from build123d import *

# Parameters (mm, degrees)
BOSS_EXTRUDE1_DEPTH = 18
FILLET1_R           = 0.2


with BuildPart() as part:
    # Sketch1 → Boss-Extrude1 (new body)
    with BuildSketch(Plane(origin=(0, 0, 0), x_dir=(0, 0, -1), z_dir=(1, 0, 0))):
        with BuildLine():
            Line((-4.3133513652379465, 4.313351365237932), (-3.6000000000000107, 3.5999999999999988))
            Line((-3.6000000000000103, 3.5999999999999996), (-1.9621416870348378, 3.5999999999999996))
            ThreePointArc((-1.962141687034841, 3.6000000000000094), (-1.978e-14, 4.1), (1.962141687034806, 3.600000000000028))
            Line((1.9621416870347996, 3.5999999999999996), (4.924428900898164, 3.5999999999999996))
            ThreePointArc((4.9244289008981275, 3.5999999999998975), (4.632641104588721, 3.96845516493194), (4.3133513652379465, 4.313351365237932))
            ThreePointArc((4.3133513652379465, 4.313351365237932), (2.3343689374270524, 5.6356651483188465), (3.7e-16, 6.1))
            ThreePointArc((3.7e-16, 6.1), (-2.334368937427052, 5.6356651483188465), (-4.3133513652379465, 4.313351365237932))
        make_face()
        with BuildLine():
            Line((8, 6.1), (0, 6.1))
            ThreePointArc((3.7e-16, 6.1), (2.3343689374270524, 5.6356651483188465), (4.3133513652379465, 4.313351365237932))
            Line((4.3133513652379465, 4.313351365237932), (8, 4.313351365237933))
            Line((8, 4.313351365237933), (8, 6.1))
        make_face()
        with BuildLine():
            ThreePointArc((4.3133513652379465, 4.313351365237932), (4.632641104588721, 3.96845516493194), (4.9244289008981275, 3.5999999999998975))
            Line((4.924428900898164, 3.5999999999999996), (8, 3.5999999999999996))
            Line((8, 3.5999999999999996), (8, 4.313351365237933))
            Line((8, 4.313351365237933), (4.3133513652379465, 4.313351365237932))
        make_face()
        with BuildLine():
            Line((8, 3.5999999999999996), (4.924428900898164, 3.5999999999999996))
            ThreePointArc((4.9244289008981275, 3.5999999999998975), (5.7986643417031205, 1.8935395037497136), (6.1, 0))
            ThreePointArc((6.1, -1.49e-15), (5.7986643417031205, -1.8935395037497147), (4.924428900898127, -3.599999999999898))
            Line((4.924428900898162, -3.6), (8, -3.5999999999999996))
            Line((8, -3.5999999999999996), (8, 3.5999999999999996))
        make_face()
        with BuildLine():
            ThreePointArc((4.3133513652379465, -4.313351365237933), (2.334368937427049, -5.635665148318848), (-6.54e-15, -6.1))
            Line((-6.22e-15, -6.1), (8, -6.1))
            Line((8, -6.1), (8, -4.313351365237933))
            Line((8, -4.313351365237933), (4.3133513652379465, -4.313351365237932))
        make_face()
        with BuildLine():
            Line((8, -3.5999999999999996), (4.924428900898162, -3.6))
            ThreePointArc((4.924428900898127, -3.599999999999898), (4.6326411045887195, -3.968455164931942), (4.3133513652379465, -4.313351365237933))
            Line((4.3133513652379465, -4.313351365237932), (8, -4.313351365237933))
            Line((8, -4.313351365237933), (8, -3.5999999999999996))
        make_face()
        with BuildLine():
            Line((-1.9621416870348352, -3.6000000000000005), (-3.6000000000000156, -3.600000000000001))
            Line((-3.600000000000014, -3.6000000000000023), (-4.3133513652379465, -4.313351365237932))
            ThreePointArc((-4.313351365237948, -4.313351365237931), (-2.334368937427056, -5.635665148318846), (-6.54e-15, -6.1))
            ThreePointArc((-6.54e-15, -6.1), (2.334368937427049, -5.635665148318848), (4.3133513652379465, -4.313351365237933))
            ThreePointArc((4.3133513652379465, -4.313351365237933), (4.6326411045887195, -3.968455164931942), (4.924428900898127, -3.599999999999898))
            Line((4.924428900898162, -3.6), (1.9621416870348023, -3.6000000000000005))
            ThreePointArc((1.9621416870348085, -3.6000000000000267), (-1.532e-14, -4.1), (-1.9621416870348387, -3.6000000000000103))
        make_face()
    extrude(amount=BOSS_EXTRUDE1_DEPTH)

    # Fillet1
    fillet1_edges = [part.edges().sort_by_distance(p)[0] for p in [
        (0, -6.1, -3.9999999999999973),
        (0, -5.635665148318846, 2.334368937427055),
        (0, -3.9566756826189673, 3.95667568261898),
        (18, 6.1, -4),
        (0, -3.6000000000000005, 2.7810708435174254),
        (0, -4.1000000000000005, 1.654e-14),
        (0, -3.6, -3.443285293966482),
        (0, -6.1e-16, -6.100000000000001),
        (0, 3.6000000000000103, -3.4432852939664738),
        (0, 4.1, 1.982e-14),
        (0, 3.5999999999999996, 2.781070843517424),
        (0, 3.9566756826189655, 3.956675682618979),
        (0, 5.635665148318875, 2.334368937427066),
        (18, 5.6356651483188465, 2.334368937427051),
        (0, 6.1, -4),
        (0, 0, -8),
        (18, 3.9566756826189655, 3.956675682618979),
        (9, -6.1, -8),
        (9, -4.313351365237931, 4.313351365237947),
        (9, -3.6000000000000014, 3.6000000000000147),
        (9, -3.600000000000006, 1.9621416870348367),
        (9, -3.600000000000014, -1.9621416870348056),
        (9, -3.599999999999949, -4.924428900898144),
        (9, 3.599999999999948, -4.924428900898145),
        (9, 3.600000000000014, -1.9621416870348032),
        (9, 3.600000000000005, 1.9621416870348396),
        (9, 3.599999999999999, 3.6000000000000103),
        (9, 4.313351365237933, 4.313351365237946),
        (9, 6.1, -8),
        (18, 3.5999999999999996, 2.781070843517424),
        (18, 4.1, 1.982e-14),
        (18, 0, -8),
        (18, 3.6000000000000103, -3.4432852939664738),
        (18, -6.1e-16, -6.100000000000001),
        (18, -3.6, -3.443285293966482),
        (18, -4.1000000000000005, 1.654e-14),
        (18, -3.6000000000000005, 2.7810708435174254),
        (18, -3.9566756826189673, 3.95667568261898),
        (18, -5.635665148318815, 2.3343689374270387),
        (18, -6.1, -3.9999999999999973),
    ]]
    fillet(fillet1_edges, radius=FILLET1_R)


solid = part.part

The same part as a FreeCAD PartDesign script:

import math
import FreeCAD as App
import Part
import Sketcher

V = App.Vector

doc = App.newDocument("Part")
body = doc.addObject("PartDesign::Body", "Body")

# Sketch on YZ plane
sketch1 = body.newObject("Sketcher::SketchObject", "Sketch")
sketch1.AttachmentSupport = (doc.getObject("YZ_Plane"), [""])
sketch1.MapMode = "FlatFace"
sketch1.addGeometry(Part.LineSegment(V(4.313351, 4.313351, 0), V(3.6, 3.6, 0)), False)
sketch1.addGeometry(Part.LineSegment(V(3.6, 3.6, 0), V(3.6, 1.962142, 0)), False)
sketch1.addGeometry(Part.ArcOfCircle(Part.Circle(V(0, 0, 0), V(0, 0, 1), 4.1), math.radians(-28.592123), math.radians(28.592123)), False)
sketch1.addGeometry(Part.LineSegment(V(3.6, -1.962142, 0), V(3.6, -4.924429, 0)), False)
sketch1.addGeometry(Part.ArcOfCircle(Part.Circle(V(0, 0, 0), V(0, 0, 1), 6.1), math.radians(-126.168642), math.radians(-53.831358)), False)
sketch1.addGeometry(Part.LineSegment(V(-3.6, -4.924429, 0), V(-3.6, -1.962142, 0)), False)
sketch1.addGeometry(Part.ArcOfCircle(Part.Circle(V(0, 0, 0), V(0, 0, 1), 4.1), math.radians(151.407877), math.radians(208.592123)), False)
sketch1.addGeometry(Part.LineSegment(V(-3.6, 1.962142, 0), V(-3.6, 3.6, 0)), False)
sketch1.addGeometry(Part.LineSegment(V(-3.6, 3.6, 0), V(-4.313351, 4.313351, 0)), False)
sketch1.addGeometry(Part.ArcOfCircle(Part.Circle(V(0, 0, 0), V(0, 0, 1), 6.1), math.radians(135), math.radians(180)), False)
sketch1.addGeometry(Part.LineSegment(V(-6.1, 0, 0), V(-6.1, -8, 0)), False)
sketch1.addGeometry(Part.LineSegment(V(-6.1, -8, 0), V(6.1, -8, 0)), False)
sketch1.addGeometry(Part.LineSegment(V(6.1, -8, 0), V(6.1, 0, 0)), False)
sketch1.addGeometry(Part.ArcOfCircle(Part.Circle(V(0, 0, 0), V(0, 0, 1), 6.1), math.radians(0), math.radians(45)), False)
sketch1.addConstraint(Sketcher.Constraint("Coincident", 0, 2, 1, 1))
sketch1.addConstraint(Sketcher.Constraint("Coincident", 1, 2, 2, 2))
sketch1.addConstraint(Sketcher.Constraint("Coincident", 2, 1, 3, 1))
sketch1.addConstraint(Sketcher.Constraint("Coincident", 3, 2, 4, 2))
sketch1.addConstraint(Sketcher.Constraint("Coincident", 4, 1, 5, 1))
sketch1.addConstraint(Sketcher.Constraint("Coincident", 5, 2, 6, 2))
sketch1.addConstraint(Sketcher.Constraint("Coincident", 6, 1, 7, 1))
sketch1.addConstraint(Sketcher.Constraint("Coincident", 7, 2, 8, 1))
sketch1.addConstraint(Sketcher.Constraint("Coincident", 8, 2, 9, 1))
sketch1.addConstraint(Sketcher.Constraint("Tangent", 9, 2, 10, 1))
sketch1.addConstraint(Sketcher.Constraint("Coincident", 10, 2, 11, 1))
sketch1.addConstraint(Sketcher.Constraint("Coincident", 11, 2, 12, 1))
sketch1.addConstraint(Sketcher.Constraint("Tangent", 12, 2, 13, 1))
sketch1.addConstraint(Sketcher.Constraint("Coincident", 13, 2, 0, 1))
sketch1.addConstraint(Sketcher.Constraint("Vertical", 1))
sketch1.addConstraint(Sketcher.Constraint("Vertical", 3))
sketch1.addConstraint(Sketcher.Constraint("Vertical", 5))
sketch1.addConstraint(Sketcher.Constraint("Vertical", 7))
sketch1.addConstraint(Sketcher.Constraint("Vertical", 10))
sketch1.addConstraint(Sketcher.Constraint("Horizontal", 11))
sketch1.addConstraint(Sketcher.Constraint("Vertical", 12))
sketch1.addConstraint(Sketcher.Constraint("Coincident", 2, 3, -1, 1))
sketch1.addConstraint(Sketcher.Constraint("Coincident", 4, 3, -1, 1))
sketch1.addConstraint(Sketcher.Constraint("Coincident", 6, 3, -1, 1))
sketch1.addConstraint(Sketcher.Constraint("Coincident", 9, 3, -1, 1))
sketch1.addConstraint(Sketcher.Constraint("Coincident", 13, 3, -1, 1))
sketch1.addConstraint(Sketcher.Constraint("Equal", 2, 6))
sketch1.addConstraint(Sketcher.Constraint("Equal", 4, 9))
sketch1.addConstraint(Sketcher.Constraint("Equal", 9, 13))
sketch1.addConstraint(Sketcher.Constraint("Symmetric", 0, 2, 7, 2, -2))
sketch1.addConstraint(Sketcher.Constraint("Perpendicular", 0, 8))
sketch1.addConstraint(Sketcher.Constraint("Horizontal", 3, 2, 4, 1))
sketch1.addConstraint(Sketcher.Constraint("Horizontal", 8, 2, 13, 2))
sketch1.addConstraint(Sketcher.Constraint("Vertical", 1, 2, 2, 1))
sketch1.addConstraint(Sketcher.Constraint("Radius", 2, 4.1))
sketch1.addConstraint(Sketcher.Constraint("Radius", 4, 6.1))
sketch1.addConstraint(Sketcher.Constraint("DistanceY", 10, 2, 10, 1, 8.0))
sketch1.addConstraint(Sketcher.Constraint("DistanceX", -1, 1, 0, 2, 3.6))
sketch1.addConstraint(Sketcher.Constraint("DistanceY", -1, 1, 0, 2, 3.6))
pad1 = body.newObject("PartDesign::Pad", "Pad")
pad1.Profile = sketch1
pad1.Length = 18
doc.recompute()

fillet = body.newObject("PartDesign::Fillet", "Fillet")
fillet.Base = (pad1, ["Edge1"])
fillet.UseAllEdges = True
fillet.Radius = 0.2

doc.recompute()
